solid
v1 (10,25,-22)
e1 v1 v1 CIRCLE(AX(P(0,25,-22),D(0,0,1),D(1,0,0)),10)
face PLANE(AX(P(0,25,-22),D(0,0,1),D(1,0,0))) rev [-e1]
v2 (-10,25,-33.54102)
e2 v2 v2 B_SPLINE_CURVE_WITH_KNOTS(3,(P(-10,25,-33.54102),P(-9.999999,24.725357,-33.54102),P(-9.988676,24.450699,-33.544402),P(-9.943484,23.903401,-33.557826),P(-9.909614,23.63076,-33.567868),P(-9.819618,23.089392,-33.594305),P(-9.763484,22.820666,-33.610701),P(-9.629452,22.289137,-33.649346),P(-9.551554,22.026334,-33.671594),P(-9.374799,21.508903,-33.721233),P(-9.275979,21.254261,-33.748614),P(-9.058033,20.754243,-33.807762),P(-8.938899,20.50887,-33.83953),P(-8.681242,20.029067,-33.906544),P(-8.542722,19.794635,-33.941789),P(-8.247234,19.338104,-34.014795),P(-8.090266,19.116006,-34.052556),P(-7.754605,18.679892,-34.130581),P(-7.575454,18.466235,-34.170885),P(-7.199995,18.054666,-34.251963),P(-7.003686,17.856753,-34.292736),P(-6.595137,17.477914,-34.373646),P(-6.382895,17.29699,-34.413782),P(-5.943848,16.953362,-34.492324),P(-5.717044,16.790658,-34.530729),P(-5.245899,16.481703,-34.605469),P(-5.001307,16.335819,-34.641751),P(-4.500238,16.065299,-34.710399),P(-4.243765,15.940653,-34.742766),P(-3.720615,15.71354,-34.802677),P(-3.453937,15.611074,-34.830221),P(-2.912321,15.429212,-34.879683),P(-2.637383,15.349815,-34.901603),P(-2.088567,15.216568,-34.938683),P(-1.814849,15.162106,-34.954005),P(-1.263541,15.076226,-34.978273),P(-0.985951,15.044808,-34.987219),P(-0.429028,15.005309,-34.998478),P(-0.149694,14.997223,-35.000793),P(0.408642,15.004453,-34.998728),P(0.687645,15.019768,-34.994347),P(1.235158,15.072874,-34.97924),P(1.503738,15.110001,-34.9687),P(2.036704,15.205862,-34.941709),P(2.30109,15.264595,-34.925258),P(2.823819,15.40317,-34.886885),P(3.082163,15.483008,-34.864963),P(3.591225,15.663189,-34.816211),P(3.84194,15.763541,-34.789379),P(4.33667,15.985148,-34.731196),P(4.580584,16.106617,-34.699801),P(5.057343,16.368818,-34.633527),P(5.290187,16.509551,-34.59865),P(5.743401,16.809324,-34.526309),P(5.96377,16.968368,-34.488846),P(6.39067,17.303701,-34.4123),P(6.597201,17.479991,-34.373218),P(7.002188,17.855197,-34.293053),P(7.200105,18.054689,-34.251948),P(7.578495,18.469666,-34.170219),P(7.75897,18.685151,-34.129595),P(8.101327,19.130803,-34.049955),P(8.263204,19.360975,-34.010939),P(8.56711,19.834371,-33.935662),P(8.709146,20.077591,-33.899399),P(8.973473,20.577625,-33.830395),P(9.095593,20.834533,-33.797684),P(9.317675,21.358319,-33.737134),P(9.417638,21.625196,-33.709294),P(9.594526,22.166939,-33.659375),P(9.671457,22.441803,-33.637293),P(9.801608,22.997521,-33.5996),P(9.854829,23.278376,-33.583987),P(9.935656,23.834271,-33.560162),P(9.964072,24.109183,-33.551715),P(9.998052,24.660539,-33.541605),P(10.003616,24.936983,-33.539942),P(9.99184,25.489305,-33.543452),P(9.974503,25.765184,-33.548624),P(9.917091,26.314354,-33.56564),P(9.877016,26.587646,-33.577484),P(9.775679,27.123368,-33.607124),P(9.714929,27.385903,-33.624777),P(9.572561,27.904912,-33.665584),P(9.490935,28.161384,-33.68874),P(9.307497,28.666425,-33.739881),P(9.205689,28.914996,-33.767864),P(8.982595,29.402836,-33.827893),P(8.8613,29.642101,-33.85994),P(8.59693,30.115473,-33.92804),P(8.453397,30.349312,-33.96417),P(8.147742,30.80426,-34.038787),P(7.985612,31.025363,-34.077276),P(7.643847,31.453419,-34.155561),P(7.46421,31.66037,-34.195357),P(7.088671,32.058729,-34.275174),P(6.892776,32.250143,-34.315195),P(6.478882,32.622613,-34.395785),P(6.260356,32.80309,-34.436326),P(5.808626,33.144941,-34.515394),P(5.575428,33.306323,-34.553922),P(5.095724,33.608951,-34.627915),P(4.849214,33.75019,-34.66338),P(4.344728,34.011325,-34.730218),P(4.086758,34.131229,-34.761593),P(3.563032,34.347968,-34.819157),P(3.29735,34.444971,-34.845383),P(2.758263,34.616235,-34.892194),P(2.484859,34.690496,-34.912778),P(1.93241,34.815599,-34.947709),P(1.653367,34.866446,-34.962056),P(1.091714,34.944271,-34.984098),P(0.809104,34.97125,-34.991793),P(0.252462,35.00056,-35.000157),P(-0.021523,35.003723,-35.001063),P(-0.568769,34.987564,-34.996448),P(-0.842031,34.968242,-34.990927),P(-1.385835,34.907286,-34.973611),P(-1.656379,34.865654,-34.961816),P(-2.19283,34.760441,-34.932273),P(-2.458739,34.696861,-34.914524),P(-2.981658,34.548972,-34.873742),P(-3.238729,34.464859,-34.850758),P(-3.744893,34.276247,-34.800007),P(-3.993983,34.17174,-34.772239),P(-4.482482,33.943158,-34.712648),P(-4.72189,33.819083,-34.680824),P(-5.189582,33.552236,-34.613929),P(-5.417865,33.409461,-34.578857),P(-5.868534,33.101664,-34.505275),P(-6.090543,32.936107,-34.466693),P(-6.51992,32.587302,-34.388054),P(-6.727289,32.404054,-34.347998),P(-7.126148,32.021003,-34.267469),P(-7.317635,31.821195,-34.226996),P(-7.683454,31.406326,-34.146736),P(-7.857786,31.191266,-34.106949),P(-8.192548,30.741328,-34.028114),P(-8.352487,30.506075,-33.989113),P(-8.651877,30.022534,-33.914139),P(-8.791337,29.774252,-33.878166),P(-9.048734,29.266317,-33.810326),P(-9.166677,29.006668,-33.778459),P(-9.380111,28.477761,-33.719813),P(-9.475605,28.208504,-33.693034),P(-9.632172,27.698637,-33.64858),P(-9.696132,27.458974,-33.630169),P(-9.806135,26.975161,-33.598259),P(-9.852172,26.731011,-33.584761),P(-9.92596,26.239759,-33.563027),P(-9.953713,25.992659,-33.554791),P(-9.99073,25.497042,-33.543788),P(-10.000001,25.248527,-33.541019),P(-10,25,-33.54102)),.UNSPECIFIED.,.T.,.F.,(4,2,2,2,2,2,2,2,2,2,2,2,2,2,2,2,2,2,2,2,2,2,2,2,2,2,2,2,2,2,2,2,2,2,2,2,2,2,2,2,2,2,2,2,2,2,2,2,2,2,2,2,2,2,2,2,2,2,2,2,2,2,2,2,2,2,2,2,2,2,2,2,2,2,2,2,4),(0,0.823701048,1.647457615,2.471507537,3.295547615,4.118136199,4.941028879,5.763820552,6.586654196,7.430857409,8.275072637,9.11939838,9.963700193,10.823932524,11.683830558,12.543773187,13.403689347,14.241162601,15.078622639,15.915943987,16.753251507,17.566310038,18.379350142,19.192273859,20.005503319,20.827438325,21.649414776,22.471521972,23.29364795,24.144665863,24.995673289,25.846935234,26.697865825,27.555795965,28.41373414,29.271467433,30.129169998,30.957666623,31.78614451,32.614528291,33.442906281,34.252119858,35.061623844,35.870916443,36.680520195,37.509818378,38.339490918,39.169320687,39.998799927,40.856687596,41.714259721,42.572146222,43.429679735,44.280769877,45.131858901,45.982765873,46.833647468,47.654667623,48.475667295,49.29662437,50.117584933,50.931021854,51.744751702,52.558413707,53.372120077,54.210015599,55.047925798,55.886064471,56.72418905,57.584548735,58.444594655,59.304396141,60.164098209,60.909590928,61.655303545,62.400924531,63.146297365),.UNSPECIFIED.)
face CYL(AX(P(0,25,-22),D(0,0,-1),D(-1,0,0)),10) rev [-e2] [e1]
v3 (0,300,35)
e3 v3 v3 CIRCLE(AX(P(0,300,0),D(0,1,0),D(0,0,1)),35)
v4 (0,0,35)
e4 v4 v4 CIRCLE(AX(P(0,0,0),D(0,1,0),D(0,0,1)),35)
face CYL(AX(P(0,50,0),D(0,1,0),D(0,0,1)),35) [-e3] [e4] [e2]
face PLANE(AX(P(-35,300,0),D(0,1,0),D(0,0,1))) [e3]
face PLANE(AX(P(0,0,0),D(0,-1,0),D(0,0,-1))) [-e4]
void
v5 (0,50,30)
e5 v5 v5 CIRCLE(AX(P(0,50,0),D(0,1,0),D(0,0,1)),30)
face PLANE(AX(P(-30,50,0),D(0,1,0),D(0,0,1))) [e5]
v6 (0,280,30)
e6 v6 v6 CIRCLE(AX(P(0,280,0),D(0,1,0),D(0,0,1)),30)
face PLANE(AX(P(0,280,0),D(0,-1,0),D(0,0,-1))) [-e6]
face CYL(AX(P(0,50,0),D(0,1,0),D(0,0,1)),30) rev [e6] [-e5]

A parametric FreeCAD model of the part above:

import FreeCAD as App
import Part
import Sketcher

V = App.Vector
Q = App.Units.Quantity

doc = App.newDocument("Part")
body = doc.addObject("PartDesign::Body", "Body")

# Sketch on XY plane
sketch1 = body.newObject("Sketcher::SketchObject", "Sketch")
sketch1.AttachmentSupport = (doc.getObject("XY_Plane"), [""])
sketch1.MapMode = "FlatFace"
sketch1.addGeometry(Part.LineSegment(V(0, 50, 0), V(-30, 50, 0)), False)
sketch1.addGeometry(Part.LineSegment(V(-30, 50, 0), V(-30, 280, 0)), False)
sketch1.addGeometry(Part.LineSegment(V(-30, 280, 0), V(0, 280, 0)), False)
sketch1.addGeometry(Part.LineSegment(V(0, 280, 0), V(0, 300, 0)), False)
sketch1.addGeometry(Part.LineSegment(V(0, 300, 0), V(-35, 300, 0)), False)
sketch1.addGeometry(Part.LineSegment(V(-35, 300, 0), V(-35, 0, 0)), False)
sketch1.addGeometry(Part.LineSegment(V(-35, 0, 0), V(0, 0, 0)), False)
sketch1.addGeometry(Part.LineSegment(V(0, 0, 0), V(0, 50, 0)), False)
sketch1.addConstraint(Sketcher.Constraint("Coincident", 0, 2, 1, 1))
sketch1.addConstraint(Sketcher.Constraint("Coincident", 1, 2, 2, 1))
sketch1.addConstraint(Sketcher.Constraint("Coincident", 2, 2, 3, 1))
sketch1.addConstraint(Sketcher.Constraint("Coincident", 3, 2, 4, 1))
sketch1.addConstraint(Sketcher.Constraint("Coincident", 4, 2, 5, 1))
sketch1.addConstraint(Sketcher.Constraint("Coincident", 5, 2, 6, 1))
sketch1.addConstraint(Sketcher.Constraint("Coincident", 6, 2, 7, 1))
sketch1.addConstraint(Sketcher.Constraint("Coincident", 7, 2, 0, 1))
sketch1.addConstraint(Sketcher.Constraint("Horizontal", 0))
sketch1.addConstraint(Sketcher.Constraint("Vertical", 1))
sketch1.addConstraint(Sketcher.Constraint("Horizontal", 2))
sketch1.addConstraint(Sketcher.Constraint("Vertical", 3))
sketch1.addConstraint(Sketcher.Constraint("Horizontal", 4))
sketch1.addConstraint(Sketcher.Constraint("Vertical", 5))
sketch1.addConstraint(Sketcher.Constraint("Horizontal", 6))
sketch1.addConstraint(Sketcher.Constraint("Vertical", 7))
sketch1.addConstraint(Sketcher.Constraint("Coincident", 6, 2, -1, 1))
sketch1.addConstraint(Sketcher.Constraint("PointOnObject", 2, 2, -2))
sketch1.addConstraint(Sketcher.Constraint("DistanceX", 0, 2, 0, 1, Q("30 mm")))
sketch1.addConstraint(Sketcher.Constraint("DistanceX", 4, 2, 4, 1, Q("35 mm")))
sketch1.addConstraint(Sketcher.Constraint("DistanceY", 1, 1, 1, 2, Q("230 mm")))
sketch1.addConstraint(Sketcher.Constraint("DistanceY", 3, 1, 3, 2, Q("20 mm")))
sketch1.addConstraint(Sketcher.Constraint("DistanceY", 5, 2, 5, 1, Q("300 mm")))
revolution = body.newObject("PartDesign::Revolution", "Revolution")
revolution.Profile = sketch1
revolution.ReferenceAxis = (sketch1, ["V_Axis"])
revolution.Angle = 360

# Sketch on XY plane
sketch2 = body.newObject("Sketcher::SketchObject", "Sketch001")
sketch2.AttachmentSupport = (doc.getObject("XY_Plane"), [""])
sketch2.MapMode = "FlatFace"
sketch2.AttachmentOffset = App.Placement(V(0, 0, -32), App.Rotation())
sketch2.addGeometry(Part.Circle(V(0, 25, 0), V(0, 0, 1), 10), False)
sketch2.addConstraint(Sketcher.Constraint("PointOnObject", 0, 3, -2))
sketch2.addConstraint(Sketcher.Constraint("Diameter", 0, Q("20 mm")))
sketch2.addConstraint(Sketcher.Constraint("DistanceY", -1, 1, 0, 3, Q("25 mm")))
pocket1 = body.newObject("PartDesign::Pocket", "Pocket")
pocket1.Profile = sketch2
pocket1.Type = "TwoLengths"
pocket1.Length = 10
pocket1.Length2 = 10
pocket1.Reversed = True

doc.recompute()
